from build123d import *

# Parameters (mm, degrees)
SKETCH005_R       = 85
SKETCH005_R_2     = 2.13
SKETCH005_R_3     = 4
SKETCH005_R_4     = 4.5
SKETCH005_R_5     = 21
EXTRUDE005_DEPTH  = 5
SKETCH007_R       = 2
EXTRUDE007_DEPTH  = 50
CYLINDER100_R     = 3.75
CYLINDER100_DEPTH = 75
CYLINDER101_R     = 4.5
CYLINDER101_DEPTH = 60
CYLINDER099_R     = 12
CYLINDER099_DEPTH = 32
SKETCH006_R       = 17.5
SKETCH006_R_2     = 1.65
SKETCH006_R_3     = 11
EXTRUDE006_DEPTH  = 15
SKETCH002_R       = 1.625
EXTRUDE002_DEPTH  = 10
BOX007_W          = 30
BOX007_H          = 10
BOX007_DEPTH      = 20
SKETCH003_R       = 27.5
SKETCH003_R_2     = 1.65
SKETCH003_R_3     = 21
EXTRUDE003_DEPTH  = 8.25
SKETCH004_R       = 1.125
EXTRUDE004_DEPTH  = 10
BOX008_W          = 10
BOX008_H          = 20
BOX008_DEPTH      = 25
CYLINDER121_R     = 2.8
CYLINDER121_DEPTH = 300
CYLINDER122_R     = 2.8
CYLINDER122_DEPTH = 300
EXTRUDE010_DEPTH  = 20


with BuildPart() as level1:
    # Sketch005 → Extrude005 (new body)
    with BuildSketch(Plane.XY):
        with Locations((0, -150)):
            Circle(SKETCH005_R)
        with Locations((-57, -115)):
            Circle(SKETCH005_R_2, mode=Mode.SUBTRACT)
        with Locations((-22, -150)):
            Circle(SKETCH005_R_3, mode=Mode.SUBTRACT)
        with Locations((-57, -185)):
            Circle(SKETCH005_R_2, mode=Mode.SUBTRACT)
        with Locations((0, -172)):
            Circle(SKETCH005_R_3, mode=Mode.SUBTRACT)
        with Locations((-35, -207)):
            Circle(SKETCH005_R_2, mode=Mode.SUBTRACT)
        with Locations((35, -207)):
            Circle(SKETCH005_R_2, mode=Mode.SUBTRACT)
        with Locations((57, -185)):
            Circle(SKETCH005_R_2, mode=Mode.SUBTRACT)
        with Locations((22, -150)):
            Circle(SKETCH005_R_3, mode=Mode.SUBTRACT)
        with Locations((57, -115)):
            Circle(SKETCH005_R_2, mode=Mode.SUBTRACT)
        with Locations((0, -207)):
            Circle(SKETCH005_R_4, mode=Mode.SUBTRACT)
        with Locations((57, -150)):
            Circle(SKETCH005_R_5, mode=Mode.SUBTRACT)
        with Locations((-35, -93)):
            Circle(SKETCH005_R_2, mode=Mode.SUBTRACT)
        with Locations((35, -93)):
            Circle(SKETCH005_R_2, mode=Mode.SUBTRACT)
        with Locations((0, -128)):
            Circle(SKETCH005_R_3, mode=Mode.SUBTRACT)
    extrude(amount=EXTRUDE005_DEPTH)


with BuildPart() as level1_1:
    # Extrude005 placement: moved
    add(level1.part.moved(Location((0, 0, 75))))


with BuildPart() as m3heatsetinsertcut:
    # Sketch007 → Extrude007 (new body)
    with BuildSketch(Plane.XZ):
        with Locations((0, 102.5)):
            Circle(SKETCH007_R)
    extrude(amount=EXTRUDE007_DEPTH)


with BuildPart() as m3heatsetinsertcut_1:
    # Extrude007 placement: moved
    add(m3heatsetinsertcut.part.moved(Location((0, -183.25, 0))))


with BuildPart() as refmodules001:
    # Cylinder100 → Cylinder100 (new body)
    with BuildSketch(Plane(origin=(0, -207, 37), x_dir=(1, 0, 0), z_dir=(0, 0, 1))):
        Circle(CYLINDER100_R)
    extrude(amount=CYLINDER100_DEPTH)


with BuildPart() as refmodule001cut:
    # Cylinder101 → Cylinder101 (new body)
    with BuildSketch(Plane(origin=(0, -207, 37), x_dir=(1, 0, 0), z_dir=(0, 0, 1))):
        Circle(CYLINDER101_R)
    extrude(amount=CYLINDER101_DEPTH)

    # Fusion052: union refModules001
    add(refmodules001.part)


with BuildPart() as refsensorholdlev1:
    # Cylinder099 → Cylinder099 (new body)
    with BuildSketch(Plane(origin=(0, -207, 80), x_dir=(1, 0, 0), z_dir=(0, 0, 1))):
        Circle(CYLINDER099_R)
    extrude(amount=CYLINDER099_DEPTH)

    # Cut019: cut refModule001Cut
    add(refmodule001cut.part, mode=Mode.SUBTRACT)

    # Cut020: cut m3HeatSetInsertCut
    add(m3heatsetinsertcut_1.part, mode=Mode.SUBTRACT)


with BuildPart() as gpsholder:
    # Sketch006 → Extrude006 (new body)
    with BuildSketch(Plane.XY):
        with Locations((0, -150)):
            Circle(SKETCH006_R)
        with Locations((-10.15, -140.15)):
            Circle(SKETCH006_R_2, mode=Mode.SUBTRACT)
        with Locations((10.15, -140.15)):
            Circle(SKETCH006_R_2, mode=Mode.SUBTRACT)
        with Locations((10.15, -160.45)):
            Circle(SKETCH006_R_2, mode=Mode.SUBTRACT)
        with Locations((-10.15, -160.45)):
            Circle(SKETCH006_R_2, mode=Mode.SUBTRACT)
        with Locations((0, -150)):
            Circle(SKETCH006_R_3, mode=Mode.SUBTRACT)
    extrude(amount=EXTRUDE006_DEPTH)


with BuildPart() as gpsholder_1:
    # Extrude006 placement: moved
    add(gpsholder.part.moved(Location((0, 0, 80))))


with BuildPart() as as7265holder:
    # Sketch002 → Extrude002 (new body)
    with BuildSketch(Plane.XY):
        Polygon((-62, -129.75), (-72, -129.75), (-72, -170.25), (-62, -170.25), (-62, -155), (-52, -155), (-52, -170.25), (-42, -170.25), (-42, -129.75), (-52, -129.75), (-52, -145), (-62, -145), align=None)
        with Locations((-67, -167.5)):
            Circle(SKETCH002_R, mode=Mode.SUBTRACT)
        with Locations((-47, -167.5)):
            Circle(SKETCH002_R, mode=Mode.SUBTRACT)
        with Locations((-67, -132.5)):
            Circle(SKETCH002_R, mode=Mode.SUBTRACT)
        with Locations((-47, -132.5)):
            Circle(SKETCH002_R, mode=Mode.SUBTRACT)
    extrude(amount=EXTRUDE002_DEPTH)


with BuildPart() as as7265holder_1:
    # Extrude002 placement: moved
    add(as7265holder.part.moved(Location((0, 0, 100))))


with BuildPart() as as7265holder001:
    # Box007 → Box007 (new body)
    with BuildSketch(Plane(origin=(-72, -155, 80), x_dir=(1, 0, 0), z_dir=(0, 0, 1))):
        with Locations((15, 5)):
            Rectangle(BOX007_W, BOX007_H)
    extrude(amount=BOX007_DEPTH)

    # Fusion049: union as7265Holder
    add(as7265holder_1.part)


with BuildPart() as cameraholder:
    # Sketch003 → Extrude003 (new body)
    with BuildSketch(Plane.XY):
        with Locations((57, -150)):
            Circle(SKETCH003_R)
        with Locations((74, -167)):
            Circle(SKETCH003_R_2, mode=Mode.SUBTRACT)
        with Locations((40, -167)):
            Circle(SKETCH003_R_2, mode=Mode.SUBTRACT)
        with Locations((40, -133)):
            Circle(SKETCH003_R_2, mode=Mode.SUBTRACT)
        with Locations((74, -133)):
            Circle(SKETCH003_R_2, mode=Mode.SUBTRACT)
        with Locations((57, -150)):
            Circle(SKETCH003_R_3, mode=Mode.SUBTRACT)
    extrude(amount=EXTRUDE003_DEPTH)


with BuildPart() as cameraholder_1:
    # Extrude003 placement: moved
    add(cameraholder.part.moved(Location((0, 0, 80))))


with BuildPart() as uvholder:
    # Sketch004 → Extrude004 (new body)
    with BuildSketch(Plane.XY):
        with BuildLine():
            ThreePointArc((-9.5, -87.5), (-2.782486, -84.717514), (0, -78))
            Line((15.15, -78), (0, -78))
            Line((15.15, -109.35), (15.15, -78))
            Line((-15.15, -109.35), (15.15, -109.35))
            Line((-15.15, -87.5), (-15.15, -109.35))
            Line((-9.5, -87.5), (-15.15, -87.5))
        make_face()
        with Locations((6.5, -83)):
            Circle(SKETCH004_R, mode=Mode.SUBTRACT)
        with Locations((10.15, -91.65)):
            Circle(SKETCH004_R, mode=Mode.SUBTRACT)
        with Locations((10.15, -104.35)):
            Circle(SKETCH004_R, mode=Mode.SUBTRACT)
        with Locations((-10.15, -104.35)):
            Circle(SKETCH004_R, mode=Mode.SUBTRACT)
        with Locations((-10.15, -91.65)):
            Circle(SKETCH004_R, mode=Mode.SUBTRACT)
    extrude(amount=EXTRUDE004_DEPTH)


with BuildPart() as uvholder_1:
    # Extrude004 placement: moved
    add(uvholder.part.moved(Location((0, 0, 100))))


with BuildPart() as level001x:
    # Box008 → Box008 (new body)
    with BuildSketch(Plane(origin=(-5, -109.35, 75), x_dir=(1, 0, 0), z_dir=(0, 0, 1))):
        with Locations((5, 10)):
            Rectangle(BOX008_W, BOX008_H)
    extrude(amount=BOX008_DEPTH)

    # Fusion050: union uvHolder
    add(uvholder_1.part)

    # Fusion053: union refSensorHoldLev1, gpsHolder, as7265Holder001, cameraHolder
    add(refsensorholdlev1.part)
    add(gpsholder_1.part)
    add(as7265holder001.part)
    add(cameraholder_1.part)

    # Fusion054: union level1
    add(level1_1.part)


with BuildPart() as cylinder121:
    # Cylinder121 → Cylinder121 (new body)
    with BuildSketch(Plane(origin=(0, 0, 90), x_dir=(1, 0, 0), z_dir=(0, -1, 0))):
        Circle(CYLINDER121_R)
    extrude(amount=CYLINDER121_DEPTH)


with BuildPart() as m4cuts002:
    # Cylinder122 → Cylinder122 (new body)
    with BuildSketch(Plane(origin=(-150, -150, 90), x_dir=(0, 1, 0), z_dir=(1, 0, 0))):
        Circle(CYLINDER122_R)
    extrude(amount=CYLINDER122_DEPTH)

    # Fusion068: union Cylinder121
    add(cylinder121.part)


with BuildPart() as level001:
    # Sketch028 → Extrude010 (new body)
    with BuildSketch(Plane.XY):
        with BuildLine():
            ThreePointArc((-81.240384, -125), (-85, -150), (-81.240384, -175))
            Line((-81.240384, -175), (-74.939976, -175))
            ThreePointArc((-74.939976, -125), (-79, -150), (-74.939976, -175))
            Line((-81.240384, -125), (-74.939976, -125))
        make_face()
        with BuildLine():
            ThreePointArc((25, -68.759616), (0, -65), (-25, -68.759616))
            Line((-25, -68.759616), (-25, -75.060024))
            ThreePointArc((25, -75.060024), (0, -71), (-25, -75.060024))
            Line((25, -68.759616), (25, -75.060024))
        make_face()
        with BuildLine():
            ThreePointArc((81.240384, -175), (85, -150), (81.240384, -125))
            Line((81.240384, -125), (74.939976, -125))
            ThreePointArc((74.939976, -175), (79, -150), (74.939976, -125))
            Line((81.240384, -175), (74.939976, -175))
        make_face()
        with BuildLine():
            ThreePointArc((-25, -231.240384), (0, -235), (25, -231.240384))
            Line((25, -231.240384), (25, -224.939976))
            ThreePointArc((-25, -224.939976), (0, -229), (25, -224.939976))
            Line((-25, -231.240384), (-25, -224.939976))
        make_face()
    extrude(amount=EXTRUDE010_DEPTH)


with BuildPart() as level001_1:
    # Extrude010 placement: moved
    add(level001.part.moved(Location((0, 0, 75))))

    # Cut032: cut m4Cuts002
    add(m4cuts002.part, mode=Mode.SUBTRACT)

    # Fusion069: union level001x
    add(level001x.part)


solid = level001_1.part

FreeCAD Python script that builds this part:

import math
import FreeCAD as App
import Part
import Sketcher

doc = App.newDocument("Part")
body = doc.addObject("PartDesign::Body", "Body")

# Sketch on XY plane
sketch1 = body.newObject("Sketcher::SketchObject", "Sketch")
sketch1.AttachmentSupport = (doc.getObject("XY_Plane"), [""])
sketch1.MapMode = "FlatFace"
sketch1.addGeometry([
    Part.Circle(App.Vector(0, -150, 0), App.Vector(0, 0, 1), 85),  # 0
    Part.Circle(App.Vector(-35, -207, 0), App.Vector(0, 0, 1), 2.13),  # 1
    Part.Circle(App.Vector(-57, -185, 0), App.Vector(0, 0, 1), 2.13),  # 2
    Part.Circle(App.Vector(0, -207, 0), App.Vector(0, 0, 1), 4.5),  # 3
    Part.Circle(App.Vector(0, -172, 0), App.Vector(0, 0, 1), 4),  # 4
    Part.Circle(App.Vector(35, -207, 0), App.Vector(0, 0, 1), 2.13),  # 5
    Part.Circle(App.Vector(57, -185, 0), App.Vector(0, 0, 1), 2.13),  # 6
    Part.Circle(App.Vector(-22, -150, 0), App.Vector(0, 0, 1), 4),  # 7
    Part.Circle(App.Vector(0, -128, 0), App.Vector(0, 0, 1), 4),  # 8
    Part.Circle(App.Vector(-57, -115, 0), App.Vector(0, 0, 1), 2.13),  # 9
    Part.Circle(App.Vector(-35, -93, 0), App.Vector(0, 0, 1), 2.13),  # 10
    Part.Circle(App.Vector(22, -150, 0), App.Vector(0, 0, 1), 4),  # 11
    Part.Circle(App.Vector(57, -150, 0), App.Vector(0, 0, 1), 21),  # 12
    Part.Circle(App.Vector(35, -93, 0), App.Vector(0, 0, 1), 2.13),  # 13
    Part.Circle(App.Vector(57, -115, 0), App.Vector(0, 0, 1), 2.13),  # 14
], False)
sketch1.addConstraint([
    Sketcher.Constraint("Equal", 1, 2),
    Sketcher.Constraint("Equal", 2, 5),
    Sketcher.Constraint("Equal", 5, 6),
    Sketcher.Constraint("Equal", 4, 7),
    Sketcher.Constraint("Equal", 7, 8),
    Sketcher.Constraint("Equal", 6, 9),
    Sketcher.Constraint("Equal", 9, 10),
    Sketcher.Constraint("Equal", 8, 11),
    Sketcher.Constraint("Equal", 10, 13),
    Sketcher.Constraint("Equal", 13, 14),
    Sketcher.Constraint("Symmetric", 1, 3, 5, 3, -2),
    Sketcher.Constraint("Symmetric", 2, 3, 6, 3, -2),
    Sketcher.Constraint("Symmetric", 7, 3, 11, 3, -2),
    Sketcher.Constraint("Symmetric", 10, 3, 13, 3, -2),
    Sketcher.Constraint("Symmetric", 9, 3, 14, 3, -2),
    Sketcher.Constraint("PointOnObject", 0, 3, -2),
    Sketcher.Constraint("PointOnObject", 3, 3, -2),
    Sketcher.Constraint("PointOnObject", 4, 3, -2),
    Sketcher.Constraint("PointOnObject", 8, 3, -2),
    Sketcher.Constraint("Horizontal", 1, 3, 3, 3),
    Sketcher.Constraint("Horizontal", 0, 3, 7, 3),
    Sketcher.Constraint("Horizontal", 11, 3, 12, 3),
    Sketcher.Constraint("Vertical", 2, 3, 9, 3),
    Sketcher.Constraint("Vertical", 1, 3, 10, 3),
    Sketcher.Constraint("Vertical", 6, 3, 12, 3),
    Sketcher.Constraint("Diameter", 0, 170.0),
    Sketcher.Constraint("Diameter", 3, 9.0),
    Sketcher.Constraint("Diameter", 4, 8.0),
    Sketcher.Constraint("Diameter", 12, 42.0),
    Sketcher.Constraint("Diameter", 1, 4.26),
    Sketcher.Constraint("DistanceY", 0, 3, -1, 1, 150.0),
    Sketcher.Constraint("DistanceX", 1, 3, -1, 1, 35.0),
    Sketcher.Constraint("DistanceY", 1, 3, -1, 1, 207.0),
    Sketcher.Constraint("DistanceX", 2, 3, -1, 1, 57.0),
    Sketcher.Constraint("DistanceY", 2, 3, -1, 1, 185.0),
    Sketcher.Constraint("DistanceY", 4, 3, -1, 1, 172.0),
    Sketcher.Constraint("DistanceX", 7, 3, -1, 1, 22.0),
    Sketcher.Constraint("DistanceY", 8, 3, -1, 1, 128.0),
    Sketcher.Constraint("DistanceY", 9, 3, -1, 1, 115.0),
    Sketcher.Constraint("DistanceY", 10, 3, -1, 1, 93.0),
])
pad1 = body.newObject("PartDesign::Pad", "Pad")
pad1.Profile = sketch1
pad1.Length = 5
body2 = doc.addObject("PartDesign::Body", "Body001")
doc.recompute()

body.Placement = App.Placement(App.Vector(0, 0, 75), App.Rotation(App.Vector(0, 0, 1), 0))
boolean = body2.newObject("PartDesign::Boolean", "Boolean")
boolean.Type = "Fuse"
boolean.addObjects([body])
body3 = doc.addObject("PartDesign::Body", "Body002")

# Sketch on XZ plane
sketch2 = body3.newObject("Sketcher::SketchObject", "Sketch001")
sketch2.AttachmentSupport = (doc.getObject("XZ_Plane002"), [""])
sketch2.MapMode = "FlatFace"
sketch2.addGeometry(Part.Circle(App.Vector(0, 102.5, 0), App.Vector(0, 0, 1), 2), False)
sketch2.addConstraint([
    Sketcher.Constraint("PointOnObject", 0, 3, -2),
    Sketcher.Constraint("Diameter", 0, 4.0),
    Sketcher.Constraint("DistanceY", -1, 1, 0, 3, 102.5),
])
pad2 = body3.newObject("PartDesign::Pad", "Pad001")
pad2.Profile = sketch2
pad2.Length = 50
body4 = doc.addObject("PartDesign::Body", "Body003")
doc.recompute()

body3.Placement = App.Placement(App.Vector(0, -183.25, 0), App.Rotation(App.Vector(0, 0, 1), 0))
boolean2 = body4.newObject("PartDesign::Boolean", "Boolean001")
boolean2.Type = "Fuse"
boolean2.addObjects([body3])
body5 = doc.addObject("PartDesign::Body", "Body004")

# Sketch on XY plane
sketch3 = body5.newObject("Sketcher::SketchObject", "Sketch002")
sketch3.AttachmentSupport = (doc.getObject("XY_Plane004"), [""])
sketch3.MapMode = "FlatFace"
sketch3.AttachmentOffset = App.Placement(App.Vector(0, 0, 37), App.Rotation())
sketch3.addGeometry(Part.Circle(App.Vector(0, -207, 0), App.Vector(0, 0, 1), 3.75), False)
sketch3.addConstraint([
    Sketcher.Constraint("PointOnObject", 0, 3, -2),
    Sketcher.Constraint("Diameter", 0, 7.5),
    Sketcher.Constraint("DistanceY", 0, 3, -1, 1, 207.0),
])
pad3 = body5.newObject("PartDesign::Pad", "Pad002")
pad3.Profile = sketch3
pad3.Length = 75
body6 = doc.addObject("PartDesign::Body", "Body005")

# Sketch on XY plane
sketch4 = body6.newObject("Sketcher::SketchObject", "Sketch003")
sketch4.AttachmentSupport = (doc.getObject("XY_Plane005"), [""])
sketch4.MapMode = "FlatFace"
sketch4.AttachmentOffset = App.Placement(App.Vector(0, 0, 37), App.Rotation())
sketch4.addGeometry(Part.Circle(App.Vector(0, -207, 0), App.Vector(0, 0, 1), 4.5), False)
sketch4.addConstraint([
    Sketcher.Constraint("PointOnObject", 0, 3, -2),
    Sketcher.Constraint("Diameter", 0, 9.0),
    Sketcher.Constraint("DistanceY", 0, 3, -1, 1, 207.0),
])
pad4 = body6.newObject("PartDesign::Pad", "Pad003")
pad4.Profile = sketch4
pad4.Length = 60
doc.recompute()

boolean3 = body6.newObject("PartDesign::Boolean", "Boolean002")
boolean3.Type = "Fuse"
boolean3.addObjects([body5])
body7 = doc.addObject("PartDesign::Body", "Body006")

# Sketch on XY plane
sketch5 = body7.newObject("Sketcher::SketchObject", "Sketch004")
sketch5.AttachmentSupport = (doc.getObject("XY_Plane006"), [""])
sketch5.MapMode = "FlatFace"
sketch5.AttachmentOffset = App.Placement(App.Vector(0, 0, 80), App.Rotation())
sketch5.addGeometry(Part.Circle(App.Vector(0, -207, 0), App.Vector(0, 0, 1), 12), False)
sketch5.addConstraint([
    Sketcher.Constraint("PointOnObject", 0, 3, -2),
    Sketcher.Constraint("Diameter", 0, 24.0),
    Sketcher.Constraint("DistanceY", 0, 3, -1, 1, 207.0),
])
pad5 = body7.newObject("PartDesign::Pad", "Pad004")
pad5.Profile = sketch5
pad5.Length = 32
doc.recompute()

boolean4 = body7.newObject("PartDesign::Boolean", "Boolean003")
boolean4.Type = "Cut"
boolean4.addObjects([body6])
doc.recompute()

boolean5 = body7.newObject("PartDesign::Boolean", "Boolean004")
boolean5.Type = "Cut"
boolean5.addObjects([body4])
body8 = doc.addObject("PartDesign::Body", "Body007")

# Sketch on XY plane
sketch6 = body8.newObject("Sketcher::SketchObject", "Sketch005")
sketch6.AttachmentSupport = (doc.getObject("XY_Plane007"), [""])
sketch6.MapMode = "FlatFace"
sketch6.addGeometry([
    Part.Circle(App.Vector(0, -150, 0), App.Vector(0, 0, 1), 17.5),  # 0
    Part.Circle(App.Vector(-10.15, -160.45, 0), App.Vector(0, 0, 1), 1.65),  # 1
    Part.Circle(App.Vector(10.15, -160.45, 0), App.Vector(0, 0, 1), 1.65),  # 2
    Part.Circle(App.Vector(-10.15, -140.15, 0), App.Vector(0, 0, 1), 1.65),  # 3
    Part.Circle(App.Vector(0, -150, 0), App.Vector(0, 0, 1), 11),  # 4
    Part.Circle(App.Vector(10.15, -140.15, 0), App.Vector(0, 0, 1), 1.65),  # 5
], False)
sketch6.addConstraint([
    Sketcher.Constraint("Coincident", 4, 3, 0, 3),
    Sketcher.Constraint("Equal", 1, 2),
    Sketcher.Constraint("Equal", 2, 3),
    Sketcher.Constraint("Equal", 3, 5),
    Sketcher.Constraint("Symmetric", 1, 3, 2, 3, -2),
    Sketcher.Constraint("Symmetric", 3, 3, 5, 3, -2),
    Sketcher.Constraint("PointOnObject", 0, 3, -2),
    Sketcher.Constraint("Vertical", 1, 3, 3, 3),
    Sketcher.Constraint("Diameter", 0, 35.0),
    Sketcher.Constraint("Diameter", 4, 22.0),
    Sketcher.Constraint("Diameter", 1, 3.3),
    Sketcher.Constraint("DistanceY", 0, 3, -1, 1, 150.0),
    Sketcher.Constraint("DistanceX", 1, 3, 2, 3, 20.3),
    Sketcher.Constraint("DistanceY", 1, 3, 3, 3, 20.3),
    Sketcher.Constraint("DistanceY", 1, 3, -1, 1, 160.45),
])
pad6 = body8.newObject("PartDesign::Pad", "Pad005")
pad6.Profile = sketch6
pad6.Length = 15
body9 = doc.addObject("PartDesign::Body", "Body008")
doc.recompute()

body8.Placement = App.Placement(App.Vector(0, 0, 80), App.Rotation(App.Vector(0, 0, 1), 0))
boolean6 = body9.newObject("PartDesign::Boolean", "Boolean005")
boolean6.Type = "Fuse"
boolean6.addObjects([body8])
body10 = doc.addObject("PartDesign::Body", "Body009")

# Sketch on XY plane
sketch7 = body10.newObject("Sketcher::SketchObject", "Sketch006")
sketch7.AttachmentSupport = (doc.getObject("XY_Plane009"), [""])
sketch7.MapMode = "FlatFace"
sketch7.addGeometry([
    Part.LineSegment(App.Vector(-62, -129.75, 0), App.Vector(-72, -129.75, 0)),  # 0
    Part.LineSegment(App.Vector(-72, -129.75, 0), App.Vector(-72, -170.25, 0)),  # 1
    Part.LineSegment(App.Vector(-72, -170.25, 0), App.Vector(-62, -170.25, 0)),  # 2
    Part.LineSegment(App.Vector(-62, -170.25, 0), App.Vector(-62, -155, 0)),  # 3
    Part.LineSegment(App.Vector(-62, -155, 0), App.Vector(-52, -155, 0)),  # 4
    Part.LineSegment(App.Vector(-52, -155, 0), App.Vector(-52, -170.25, 0)),  # 5
    Part.LineSegment(App.Vector(-52, -170.25, 0), App.Vector(-42, -170.25, 0)),  # 6
    Part.LineSegment(App.Vector(-42, -170.25, 0), App.Vector(-42, -129.75, 0)),  # 7
    Part.LineSegment(App.Vector(-42, -129.75, 0), App.Vector(-52, -129.75, 0)),  # 8
    Part.LineSegment(App.Vector(-52, -129.75, 0), App.Vector(-52, -145, 0)),  # 9
    Part.LineSegment(App.Vector(-52, -145, 0), App.Vector(-62, -145, 0)),  # 10
    Part.LineSegment(App.Vector(-62, -145, 0), App.Vector(-62, -129.75, 0)),  # 11
    Part.Circle(App.Vector(-67, -167.5, 0), App.Vector(0, 0, 1), 1.625),  # 12
    Part.Circle(App.Vector(-47, -167.5, 0), App.Vector(0, 0, 1), 1.625),  # 13
    Part.Circle(App.Vector(-67, -132.5, 0), App.Vector(0, 0, 1), 1.625),  # 14
    Part.Circle(App.Vector(-47, -132.5, 0), App.Vector(0, 0, 1), 1.625),  # 15
], False)
sketch7.addConstraint([
    Sketcher.Constraint("Coincident", 0, 2, 1, 1),
    Sketcher.Constraint("Coincident", 1, 2, 2, 1),
    Sketcher.Constraint("Coincident", 2, 2, 3, 1),
    Sketcher.Constraint("Coincident", 3, 2, 4, 1),
    Sketcher.Constraint("Coincident", 4, 2, 5, 1),
    Sketcher.Constraint("Coincident", 5, 2, 6, 1),
    Sketcher.Constraint("Coincident", 6, 2, 7, 1),
    Sketcher.Constraint("Coincident", 7, 2, 8, 1),
    Sketcher.Constraint("Coincident", 8, 2, 9, 1),
    Sketcher.Constraint("Coincident", 9, 2, 10, 1),
    Sketcher.Constraint("Coincident", 10, 2, 11, 1),
    Sketcher.Constraint("Coincident", 11, 2, 0, 1),
    Sketcher.Constraint("Horizontal", 0),
    Sketcher.Constraint("Vertical", 1),
    Sketcher.Constraint("Horizontal", 2),
    Sketcher.Constraint("Vertical", 3),
    Sketcher.Constraint("Horizontal", 4),
    Sketcher.Constraint("Vertical", 5),
    Sketcher.Constraint("Horizontal", 6),
    Sketcher.Constraint("Vertical", 7),
    Sketcher.Constraint("Horizontal", 8),
    Sketcher.Constraint("Vertical", 9),
    Sketcher.Constraint("Horizontal", 10),
    Sketcher.Constraint("Vertical", 11),
    Sketcher.Constraint("Equal", 12, 13),
    Sketcher.Constraint("Equal", 13, 14),
    Sketcher.Constraint("Equal", 14, 15),
    Sketcher.Constraint("Horizontal", 12, 3, 13, 3),
    Sketcher.Constraint("Horizontal", 14, 3, 15, 3),
    Sketcher.Constraint("Horizontal", 2, 2, 5, 2),
    Sketcher.Constraint("Horizontal", 0, 2, 7, 2),
    Sketcher.Constraint("Vertical", 12, 3, 14, 3),
    Sketcher.Constraint("Vertical", 13, 3, 15, 3),
    Sketcher.Constraint("Vertical", 5, 2, 8, 2),
    Sketcher.Constraint("Vertical", 3, 2, 10, 2),
    Sketcher.Constraint("Equal", 2, 4),
    Sketcher.Constraint("Equal", 4, 6),
    Sketcher.Constraint("Equal", 5, 9),
    Sketcher.Constraint("Diameter", 12, 3.25),
    Sketcher.Constraint("DistanceX", 0, 2, 0, 1, 10.0),
    Sketcher.Constraint("DistanceY", 1, 2, 1, 1, 40.5),
    Sketcher.Constraint("DistanceX", 12, 3, -1, 1, 67.0),
    Sketcher.Constraint("DistanceX", 13, 3, -1, 1, 47.0),
    Sketcher.Constraint("DistanceX", 0, 2, -1, 1, 72.0),
    Sketcher.Constraint("DistanceY", 3, 2, -1, 1, 155.0),
    Sketcher.Constraint("DistanceY", 9, 2, -1, 1, 145.0),
    Sketcher.Constraint("DistanceY", 12, 3, 14, 3, 35.0),
    Sketcher.Constraint("DistanceY", 12, 3, -1, 1, 167.5),
])
pad7 = body10.newObject("PartDesign::Pad", "Pad006")
pad7.Profile = sketch7
pad7.Length = 10
body11 = doc.addObject("PartDesign::Body", "Body010")
doc.recompute()

body10.Placement = App.Placement(App.Vector(0, 0, 100), App.Rotation(App.Vector(0, 0, 1), 0))
boolean7 = body11.newObject("PartDesign::Boolean", "Boolean006")
boolean7.Type = "Fuse"
boolean7.addObjects([body10])
body12 = doc.addObject("PartDesign::Body", "Body011")

# Sketch on XY plane
sketch8 = body12.newObject("Sketcher::SketchObject", "Sketch007")
sketch8.AttachmentSupport = (doc.getObject("XY_Plane011"), [""])
sketch8.MapMode = "FlatFace"
sketch8.AttachmentOffset = App.Placement(App.Vector(0, 0, 80), App.Rotation())
sketch8.addGeometry([
    Part.LineSegment(App.Vector(-72, -145, 0), App.Vector(-72, -155, 0)),
    Part.LineSegment(App.Vector(-72, -155, 0), App.Vector(-42, -155, 0)),
    Part.LineSegment(App.Vector(-42, -155, 0), App.Vector(-42, -145, 0)),
    Part.LineSegment(App.Vector(-42, -145, 0), App.Vector(-72, -145, 0)),
], False)
sketch8.addConstraint([
    Sketcher.Constraint("Coincident", 0, 2, 1, 1),
    Sketcher.Constraint("Coincident", 1, 2, 2, 1),
    Sketcher.Constraint("Coincident", 2, 2, 3, 1),
    Sketcher.Constraint("Coincident", 3, 2, 0, 1),
    Sketcher.Constraint("Vertical", 0),
    Sketcher.Constraint("Horizontal", 1),
    Sketcher.Constraint("Vertical", 2),
    Sketcher.Constraint("Horizontal", 3),
    Sketcher.Constraint("DistanceX", 1, 1, 1, 2, 30.0),
    Sketcher.Constraint("DistanceY", 0, 2, 0, 1, 10.0),
    Sketcher.Constraint("DistanceX", 0, 2, -1, 1, 72.0),
    Sketcher.Constraint("DistanceY", 0, 2, -1, 1, 155.0),
])
pad8 = body12.newObject("PartDesign::Pad", "Pad007")
pad8.Profile = sketch8
pad8.Length = 20
doc.recompute()

boolean8 = body12.newObject("PartDesign::Boolean", "Boolean007")
boolean8.Type = "Fuse"
boolean8.addObjects([body11])
body13 = doc.addObject("PartDesign::Body", "Body012")

# Sketch on XY plane
sketch9 = body13.newObject("Sketcher::SketchObject", "Sketch008")
sketch9.AttachmentSupport = (doc.getObject("XY_Plane012"), [""])
sketch9.MapMode = "FlatFace"
sketch9.addGeometry([
    Part.Circle(App.Vector(57, -150, 0), App.Vector(0, 0, 1), 27.5),  # 0
    Part.Circle(App.Vector(40, -167, 0), App.Vector(0, 0, 1), 1.65),  # 1
    Part.Circle(App.Vector(74, -167, 0), App.Vector(0, 0, 1), 1.65),  # 2
    Part.Circle(App.Vector(40, -133, 0), App.Vector(0, 0, 1), 1.65),  # 3
    Part.Circle(App.Vector(57, -150, 0), App.Vector(0, 0, 1), 21),  # 4
    Part.Circle(App.Vector(74, -133, 0), App.Vector(0, 0, 1), 1.65),  # 5
], False)
sketch9.addConstraint([
    Sketcher.Constraint("Coincident", 4, 3, 0, 3),
    Sketcher.Constraint("Equal", 1, 2),
    Sketcher.Constraint("Equal", 2, 3),
    Sketcher.Constraint("Equal", 3, 5),
    Sketcher.Constraint("Horizontal", 1, 3, 2, 3),
    Sketcher.Constraint("Horizontal", 3, 3, 5, 3),
    Sketcher.Constraint("Vertical", 1, 3, 3, 3),
    Sketcher.Constraint("Vertical", 2, 3, 5, 3),
    Sketcher.Constraint("Diameter", 0, 55.0),
    Sketcher.Constraint("Diameter", 4, 42.0),
    Sketcher.Constraint("Diameter", 1, 3.3),
    Sketcher.Constraint("DistanceX", -1, 1, 0, 3, 57.0),
    Sketcher.Constraint("DistanceY", 0, 3, -1, 1, 150.0),
    Sketcher.Constraint("DistanceX", -1, 1, 1, 3, 40.0),
    Sketcher.Constraint("DistanceY", 1, 3, -1, 1, 167.0),
    Sketcher.Constraint("DistanceX", -1, 1, 2, 3, 74.0),
    Sketcher.Constraint("DistanceY", 3, 3, -1, 1, 133.0),
])
pad9 = body13.newObject("PartDesign::Pad", "Pad008")
pad9.Profile = sketch9
pad9.Length = 8.25
body14 = doc.addObject("PartDesign::Body", "Body013")
doc.recompute()

body13.Placement = App.Placement(App.Vector(0, 0, 80), App.Rotation(App.Vector(0, 0, 1), 0))
boolean9 = body14.newObject("PartDesign::Boolean", "Boolean008")
boolean9.Type = "Fuse"
boolean9.addObjects([body13])
body15 = doc.addObject("PartDesign::Body", "Body014")

# Sketch on XY plane
sketch10 = body15.newObject("Sketcher::SketchObject", "Sketch009")
sketch10.AttachmentSupport = (doc.getObject("XY_Plane014"), [""])
sketch10.MapMode = "FlatFace"
sketch10.addGeometry([
    Part.ArcOfCircle(Part.Circle(App.Vector(-9.500001, -77.999999, 0), App.Vector(0, 0, 1), 9.500001), math.radians(-89.999991), math.radians(-0.000009)),  # 0
    Part.LineSegment(App.Vector(-9.5, -87.5, 0), App.Vector(-15.15, -87.5, 0)),  # 1
    Part.LineSegment(App.Vector(-15.15, -87.5, 0), App.Vector(-15.15, -109.35, 0)),  # 2
    Part.LineSegment(App.Vector(-15.15, -109.35, 0), App.Vector(15.15, -109.35, 0)),  # 3
    Part.LineSegment(App.Vector(15.15, -109.35, 0), App.Vector(15.15, -78, 0)),  # 4
    Part.LineSegment(App.Vector(15.15, -78, 0), App.Vector(0, -78, 0)),  # 5
    Part.Circle(App.Vector(10.15, -104.35, 0), App.Vector(0, 0, 1), 1.125),  # 6
    Part.Circle(App.Vector(-10.15, -104.35, 0), App.Vector(0, 0, 1), 1.125),  # 7
    Part.Circle(App.Vector(10.15, -91.65, 0), App.Vector(0, 0, 1), 1.125),  # 8
    Part.Circle(App.Vector(6.5, -83, 0), App.Vector(0, 0, 1), 1.125),  # 9
    Part.Circle(App.Vector(-10.15, -91.65, 0), App.Vector(0, 0, 1), 1.125),  # 10
], False)
sketch10.addConstraint([
    Sketcher.Constraint("Tangent", 0, 1, 1, 1),
    Sketcher.Constraint("Coincident", 1, 2, 2, 1),
    Sketcher.Constraint("Coincident", 2, 2, 3, 1),
    Sketcher.Constraint("Coincident", 3, 2, 4, 1),
    Sketcher.Constraint("Coincident", 4, 2, 5, 1),
    Sketcher.Constraint("Coincident", 5, 2, 0, 2),
    Sketcher.Constraint("Horizontal", 1),
    Sketcher.Constraint("Vertical", 2),
    Sketcher.Constraint("Horizontal", 3),
    Sketcher.Constraint("Vertical", 4),
    Sketcher.Constraint("Horizontal", 5),
    Sketcher.Constraint("Equal", 6, 7),
    Sketcher.Constraint("Equal", 7, 8),
    Sketcher.Constraint("Equal", 8, 9),
    Sketcher.Constraint("Equal", 9, 10),
    Sketcher.Constraint("Symmetric", 6, 3, 7, 3, -2),
    Sketcher.Constraint("Symmetric", 8, 3, 10, 3, -2),
    Sketcher.Constraint("PointOnObject", 5, 2, -2),
    Sketcher.Constraint("Horizontal", 0, 3, 4, 2),
    Sketcher.Constraint("Vertical", 6, 3, 8, 3),
    Sketcher.Constraint("Radius", 0, 9.500001),
    Sketcher.Constraint("Diameter", 6, 2.25),
    Sketcher.Constraint("DistanceX", 3, 1, 3, 2, 30.3),
    Sketcher.Constraint("DistanceY", 0, 3, -1, 1, 77.999999),
    Sketcher.Constraint("DistanceY", 9, 3, -1, 1, 83.0),
    Sketcher.Constraint("DistanceX", 0, 3, 9, 3, 16.000001),
    Sketcher.Constraint("DistanceX", 1, 2, 10, 3, 5.0),
    Sketcher.Constraint("DistanceY", 2, 2, 7, 3, 5.0),
    Sketcher.Constraint("DistanceX", 6, 3, 3, 2, 5.0),
    Sketcher.Constraint("DistanceY", 2, 2, 2, 1, 21.85),
    Sketcher.Constraint("DistanceY", 6, 3, 8, 3, 12.7),
])
pad10 = body15.newObject("PartDesign::Pad", "Pad009")
pad10.Profile = sketch10
pad10.Length = 10
body16 = doc.addObject("PartDesign::Body", "Body015")
doc.recompute()

body15.Placement = App.Placement(App.Vector(0, 0, 100), App.Rotation(App.Vector(0, 0, 1), 0))
boolean10 = body16.newObject("PartDesign::Boolean", "Boolean009")
boolean10.Type = "Fuse"
boolean10.addObjects([body15])
body17 = doc.addObject("PartDesign::Body", "Body016")
body17.AllowCompound = True

# Sketch on XY plane
sketch11 = body17.newObject("Sketcher::SketchObject", "Sketch010")
sketch11.AttachmentSupport = (doc.getObject("XY_Plane016"), [""])
sketch11.MapMode = "FlatFace"
sketch11.AttachmentOffset = App.Placement(App.Vector(0, 0, 75), App.Rotation())
sketch11.addGeometry([
    Part.LineSegment(App.Vector(-5, -89.35, 0), App.Vector(-5, -109.35, 0)),
    Part.LineSegment(App.Vector(-5, -109.35, 0), App.Vector(5, -109.35, 0)),
    Part.LineSegment(App.Vector(5, -109.35, 0), App.Vector(5, -89.35, 0)),
    Part.LineSegment(App.Vector(5, -89.35, 0), App.Vector(-5, -89.35, 0)),
], False)
sketch11.addConstraint([
    Sketcher.Constraint("Coincident", 0, 2, 1, 1),
    Sketcher.Constraint("Coincident", 1, 2, 2, 1),
    Sketcher.Constraint("Coincident", 2, 2, 3, 1),
    Sketcher.Constraint("Coincident", 3, 2, 0, 1),
    Sketcher.Constraint("Vertical", 0),
    Sketcher.Constraint("Horizontal", 1),
    Sketcher.Constraint("Vertical", 2),
    Sketcher.Constraint("Horizontal", 3),
    Sketcher.Constraint("DistanceX", 1, 1, 1, 2, 10.0),
    Sketcher.Constraint("DistanceY", 0, 2, 0, 1, 20.0),
    Sketcher.Constraint("DistanceX", 0, 2, -1, 1, 5.0),
    Sketcher.Constraint("DistanceY", 0, 2, -1, 1, 109.35),
])
pad11 = body17.newObject("PartDesign::Pad", "Pad010")
pad11.Profile = sketch11
pad11.Length = 25
doc.recompute()

boolean11 = body17.newObject("PartDesign::Boolean", "Boolean010")
boolean11.Type = "Fuse"
boolean11.addObjects([body16])
doc.recompute()

boolean12 = body17.newObject("PartDesign::Boolean", "Boolean011")
boolean12.Type = "Fuse"
boolean12.addObjects([body7])
doc.recompute()

boolean13 = body17.newObject("PartDesign::Boolean", "Boolean012")
boolean13.Type = "Fuse"
boolean13.addObjects([body9])
doc.recompute()

boolean14 = body17.newObject("PartDesign::Boolean", "Boolean013")
boolean14.Type = "Fuse"
boolean14.addObjects([body12])
doc.recompute()

boolean15 = body17.newObject("PartDesign::Boolean", "Boolean014")
boolean15.Type = "Fuse"
boolean15.addObjects([body14])
doc.recompute()

boolean16 = body17.newObject("PartDesign::Boolean", "Boolean015")
boolean16.Type = "Fuse"
boolean16.addObjects([body2])
body18 = doc.addObject("PartDesign::Body", "Body017")

# Sketch on XZ plane
sketch12 = body18.newObject("Sketcher::SketchObject", "Sketch011")
sketch12.AttachmentSupport = (doc.getObject("XZ_Plane017"), [""])
sketch12.MapMode = "FlatFace"
sketch12.addGeometry(Part.Circle(App.Vector(0, 90, 0), App.Vector(0, 0, 1), 2.8), False)
sketch12.addConstraint([
    Sketcher.Constraint("PointOnObject", 0, 3, -2),
    Sketcher.Constraint("Diameter", 0, 5.6),
    Sketcher.Constraint("DistanceY", -1, 1, 0, 3, 90.0),
])
pad12 = body18.newObject("PartDesign::Pad", "Pad011")
pad12.Profile = sketch12
pad12.Length = 300
body19 = doc.addObject("PartDesign::Body", "Body018")

# Sketch on YZ plane
sketch13 = body19.newObject("Sketcher::SketchObject", "Sketch012")
sketch13.AttachmentSupport = (doc.getObject("YZ_Plane018"), [""])
sketch13.MapMode = "FlatFace"
sketch13.AttachmentOffset = App.Placement(App.Vector(0, 0, -150), App.Rotation())
sketch13.addGeometry(Part.Circle(App.Vector(-150, 90, 0), App.Vector(0, 0, 1), 2.8), False)
sketch13.addConstraint([
    Sketcher.Constraint("Diameter", 0, 5.6),
    Sketcher.Constraint("DistanceX", 0, 3, -1, 1, 150.0),
    Sketcher.Constraint("DistanceY", -1, 1, 0, 3, 90.0),
])
pad13 = body19.newObject("PartDesign::Pad", "Pad012")
pad13.Profile = sketch13
pad13.Length = 300
doc.recompute()

boolean17 = body19.newObject("PartDesign::Boolean", "Boolean016")
boolean17.Type = "Fuse"
boolean17.addObjects([body18])
body20 = doc.addObject("PartDesign::Body", "Body019")
body20.AllowCompound = True

# Sketch on XY plane
sketch14 = body20.newObject("Sketcher::SketchObject", "Sketch013")
sketch14.AttachmentSupport = (doc.getObject("XY_Plane019"), [""])
sketch14.MapMode = "FlatFace"
sketch14.addGeometry([
    Part.ArcOfCircle(Part.Circle(App.Vector(-0.000001, -150, 0), App.Vector(0, 0, 1), 84.999999), math.radians(162.895365), math.radians(197.104635)),  # 0
    Part.LineSegment(App.Vector(-81.240384, -175, 0), App.Vector(-74.939976, -175, 0)),  # 1
    Part.ArcOfCircle(Part.Circle(App.Vector(0, -150, 0), App.Vector(0, 0, 1), 79), math.radians(161.551285), math.radians(198.448715)),  # 2
    Part.LineSegment(App.Vector(-74.939976, -125, 0), App.Vector(-81.240384, -125, 0)),  # 3
    Part.ArcOfCircle(Part.Circle(App.Vector(0, -149.999999, 0), App.Vector(0, 0, 1), 84.999999), math.radians(72.895365), math.radians(107.104635)),  # 4
    Part.LineSegment(App.Vector(-25, -68.759616, 0), App.Vector(-25, -75.060024, 0)),  # 5
    Part.ArcOfCircle(Part.Circle(App.Vector(0, -150, 0), App.Vector(0, 0, 1), 79), math.radians(71.551285), math.radians(108.448715)),  # 6
    Part.LineSegment(App.Vector(25, -75.060024, 0), App.Vector(25, -68.759616, 0)),  # 7
    Part.ArcOfCircle(Part.Circle(App.Vector(0.000001, -150, 0), App.Vector(0, 0, 1), 84.999999), math.radians(-17.104635), math.radians(17.104635)),  # 8
    Part.LineSegment(App.Vector(81.240384, -125, 0), App.Vector(74.939976, -125, 0)),  # 9
    Part.ArcOfCircle(Part.Circle(App.Vector(0, -150, 0), App.Vector(0, 0, 1), 79), math.radians(-18.448715), math.radians(18.448715)),  # 10
    Part.LineSegment(App.Vector(74.939976, -175, 0), App.Vector(81.240384, -175, 0)),  # 11
    Part.ArcOfCircle(Part.Circle(App.Vector(0, -150.000001, 0), App.Vector(0, 0, 1), 84.999999), math.radians(-107.104635), math.radians(-72.895365)),  # 12
    Part.LineSegment(App.Vector(25, -231.240384, 0), App.Vector(25, -224.939976, 0)),  # 13
    Part.ArcOfCircle(Part.Circle(App.Vector(0, -150, 0), App.Vector(0, 0, 1), 79), math.radians(-108.448715), math.radians(-71.551285)),  # 14
    Part.LineSegment(App.Vector(-25, -224.939976, 0), App.Vector(-25, -231.240384, 0)),  # 15
], False)
sketch14.addConstraint([
    Sketcher.Constraint("Coincident", 0, 2, 1, 1),
    Sketcher.Constraint("Coincident", 1, 2, 2, 2),
    Sketcher.Constraint("Coincident", 2, 1, 3, 1),
    Sketcher.Constraint("Coincident", 3, 2, 0, 1),
    Sketcher.Constraint("Coincident", 4, 2, 5, 1),
    Sketcher.Constraint("Coincident", 5, 2, 6, 2),
    Sketcher.Constraint("Coincident", 6, 1, 7, 1),
    Sketcher.Constraint("Coincident", 7, 2, 4, 1),
    Sketcher.Constraint("Coincident", 8, 2, 9, 1),
    Sketcher.Constraint("Coincident", 9, 2, 10, 2),
    Sketcher.Constraint("Coincident", 10, 1, 11, 1),
    Sketcher.Constraint("Coincident", 11, 2, 8, 1),
    Sketcher.Constraint("Coincident", 12, 2, 13, 1),
    Sketcher.Constraint("Coincident", 13, 2, 14, 2),
    Sketcher.Constraint("Coincident", 14, 1, 15, 1),
    Sketcher.Constraint("Coincident", 15, 2, 12, 1),
    Sketcher.Constraint("Horizontal", 1),
    Sketcher.Constraint("Horizontal", 3),
    Sketcher.Constraint("Vertical", 5),
    Sketcher.Constraint("Vertical", 7),
    Sketcher.Constraint("Horizontal", 9),
    Sketcher.Constraint("Horizontal", 11),
    Sketcher.Constraint("Vertical", 13),
    Sketcher.Constraint("Vertical", 15),
    Sketcher.Constraint("Coincident", 2, 3, 0, 3),
    Sketcher.Constraint("Coincident", 4, 3, 0, 3),
    Sketcher.Constraint("Coincident", 6, 3, 0, 3),
    Sketcher.Constraint("Coincident", 8, 3, 0, 3),
    Sketcher.Constraint("Coincident", 10, 3, 0, 3),
    Sketcher.Constraint("Coincident", 12, 3, 0, 3),
    Sketcher.Constraint("Coincident", 14, 3, 0, 3),
    Sketcher.Constraint("Equal", 0, 4),
    Sketcher.Constraint("Equal", 2, 6),
    Sketcher.Constraint("Equal", 4, 8),
    Sketcher.Constraint("Equal", 6, 10),
    Sketcher.Constraint("Equal", 8, 12),
    Sketcher.Constraint("Equal", 10, 14),
    Sketcher.Constraint("Symmetric", 5, 2, 6, 1, -2),
    Sketcher.Constraint("Horizontal", 3, 2, 8, 2),
    Sketcher.Constraint("Horizontal", 1, 2, 10, 1),
    Sketcher.Constraint("Horizontal", 13, 2, 14, 1),
    Sketcher.Constraint("Vertical", 1, 2, 2, 1),
    Sketcher.Constraint("Vertical", 7, 2, 12, 2),
    Sketcher.Constraint("Equal", 11, 5),
    Sketcher.Constraint("Radius", 0, 84.999999),
    Sketcher.Constraint("Radius", 2, 79.0),
    Sketcher.Constraint("DistanceY", 0, 3, -1, 1, 150.0),
    Sketcher.Constraint("DistanceY", 0, 2, -1, 1, 175.0),
])
pad14 = body20.newObject("PartDesign::Pad", "Pad013")
pad14.Profile = sketch14
pad14.Length = 20
body21 = doc.addObject("PartDesign::Body", "Body020")
body21.AllowCompound = True
doc.recompute()

body20.Placement = App.Placement(App.Vector(0, 0, 75), App.Rotation(App.Vector(0, 0, 1), 0))
boolean18 = body21.newObject("PartDesign::Boolean", "Boolean017")
boolean18.Type = "Fuse"
boolean18.addObjects([body20])
doc.recompute()

boolean19 = body21.newObject("PartDesign::Boolean", "Boolean018")
boolean19.Type = "Cut"
boolean19.addObjects([body19])
doc.recompute()

boolean20 = body21.newObject("PartDesign::Boolean", "Boolean019")
boolean20.Type = "Fuse"
boolean20.addObjects([body17])

doc.recompute()
